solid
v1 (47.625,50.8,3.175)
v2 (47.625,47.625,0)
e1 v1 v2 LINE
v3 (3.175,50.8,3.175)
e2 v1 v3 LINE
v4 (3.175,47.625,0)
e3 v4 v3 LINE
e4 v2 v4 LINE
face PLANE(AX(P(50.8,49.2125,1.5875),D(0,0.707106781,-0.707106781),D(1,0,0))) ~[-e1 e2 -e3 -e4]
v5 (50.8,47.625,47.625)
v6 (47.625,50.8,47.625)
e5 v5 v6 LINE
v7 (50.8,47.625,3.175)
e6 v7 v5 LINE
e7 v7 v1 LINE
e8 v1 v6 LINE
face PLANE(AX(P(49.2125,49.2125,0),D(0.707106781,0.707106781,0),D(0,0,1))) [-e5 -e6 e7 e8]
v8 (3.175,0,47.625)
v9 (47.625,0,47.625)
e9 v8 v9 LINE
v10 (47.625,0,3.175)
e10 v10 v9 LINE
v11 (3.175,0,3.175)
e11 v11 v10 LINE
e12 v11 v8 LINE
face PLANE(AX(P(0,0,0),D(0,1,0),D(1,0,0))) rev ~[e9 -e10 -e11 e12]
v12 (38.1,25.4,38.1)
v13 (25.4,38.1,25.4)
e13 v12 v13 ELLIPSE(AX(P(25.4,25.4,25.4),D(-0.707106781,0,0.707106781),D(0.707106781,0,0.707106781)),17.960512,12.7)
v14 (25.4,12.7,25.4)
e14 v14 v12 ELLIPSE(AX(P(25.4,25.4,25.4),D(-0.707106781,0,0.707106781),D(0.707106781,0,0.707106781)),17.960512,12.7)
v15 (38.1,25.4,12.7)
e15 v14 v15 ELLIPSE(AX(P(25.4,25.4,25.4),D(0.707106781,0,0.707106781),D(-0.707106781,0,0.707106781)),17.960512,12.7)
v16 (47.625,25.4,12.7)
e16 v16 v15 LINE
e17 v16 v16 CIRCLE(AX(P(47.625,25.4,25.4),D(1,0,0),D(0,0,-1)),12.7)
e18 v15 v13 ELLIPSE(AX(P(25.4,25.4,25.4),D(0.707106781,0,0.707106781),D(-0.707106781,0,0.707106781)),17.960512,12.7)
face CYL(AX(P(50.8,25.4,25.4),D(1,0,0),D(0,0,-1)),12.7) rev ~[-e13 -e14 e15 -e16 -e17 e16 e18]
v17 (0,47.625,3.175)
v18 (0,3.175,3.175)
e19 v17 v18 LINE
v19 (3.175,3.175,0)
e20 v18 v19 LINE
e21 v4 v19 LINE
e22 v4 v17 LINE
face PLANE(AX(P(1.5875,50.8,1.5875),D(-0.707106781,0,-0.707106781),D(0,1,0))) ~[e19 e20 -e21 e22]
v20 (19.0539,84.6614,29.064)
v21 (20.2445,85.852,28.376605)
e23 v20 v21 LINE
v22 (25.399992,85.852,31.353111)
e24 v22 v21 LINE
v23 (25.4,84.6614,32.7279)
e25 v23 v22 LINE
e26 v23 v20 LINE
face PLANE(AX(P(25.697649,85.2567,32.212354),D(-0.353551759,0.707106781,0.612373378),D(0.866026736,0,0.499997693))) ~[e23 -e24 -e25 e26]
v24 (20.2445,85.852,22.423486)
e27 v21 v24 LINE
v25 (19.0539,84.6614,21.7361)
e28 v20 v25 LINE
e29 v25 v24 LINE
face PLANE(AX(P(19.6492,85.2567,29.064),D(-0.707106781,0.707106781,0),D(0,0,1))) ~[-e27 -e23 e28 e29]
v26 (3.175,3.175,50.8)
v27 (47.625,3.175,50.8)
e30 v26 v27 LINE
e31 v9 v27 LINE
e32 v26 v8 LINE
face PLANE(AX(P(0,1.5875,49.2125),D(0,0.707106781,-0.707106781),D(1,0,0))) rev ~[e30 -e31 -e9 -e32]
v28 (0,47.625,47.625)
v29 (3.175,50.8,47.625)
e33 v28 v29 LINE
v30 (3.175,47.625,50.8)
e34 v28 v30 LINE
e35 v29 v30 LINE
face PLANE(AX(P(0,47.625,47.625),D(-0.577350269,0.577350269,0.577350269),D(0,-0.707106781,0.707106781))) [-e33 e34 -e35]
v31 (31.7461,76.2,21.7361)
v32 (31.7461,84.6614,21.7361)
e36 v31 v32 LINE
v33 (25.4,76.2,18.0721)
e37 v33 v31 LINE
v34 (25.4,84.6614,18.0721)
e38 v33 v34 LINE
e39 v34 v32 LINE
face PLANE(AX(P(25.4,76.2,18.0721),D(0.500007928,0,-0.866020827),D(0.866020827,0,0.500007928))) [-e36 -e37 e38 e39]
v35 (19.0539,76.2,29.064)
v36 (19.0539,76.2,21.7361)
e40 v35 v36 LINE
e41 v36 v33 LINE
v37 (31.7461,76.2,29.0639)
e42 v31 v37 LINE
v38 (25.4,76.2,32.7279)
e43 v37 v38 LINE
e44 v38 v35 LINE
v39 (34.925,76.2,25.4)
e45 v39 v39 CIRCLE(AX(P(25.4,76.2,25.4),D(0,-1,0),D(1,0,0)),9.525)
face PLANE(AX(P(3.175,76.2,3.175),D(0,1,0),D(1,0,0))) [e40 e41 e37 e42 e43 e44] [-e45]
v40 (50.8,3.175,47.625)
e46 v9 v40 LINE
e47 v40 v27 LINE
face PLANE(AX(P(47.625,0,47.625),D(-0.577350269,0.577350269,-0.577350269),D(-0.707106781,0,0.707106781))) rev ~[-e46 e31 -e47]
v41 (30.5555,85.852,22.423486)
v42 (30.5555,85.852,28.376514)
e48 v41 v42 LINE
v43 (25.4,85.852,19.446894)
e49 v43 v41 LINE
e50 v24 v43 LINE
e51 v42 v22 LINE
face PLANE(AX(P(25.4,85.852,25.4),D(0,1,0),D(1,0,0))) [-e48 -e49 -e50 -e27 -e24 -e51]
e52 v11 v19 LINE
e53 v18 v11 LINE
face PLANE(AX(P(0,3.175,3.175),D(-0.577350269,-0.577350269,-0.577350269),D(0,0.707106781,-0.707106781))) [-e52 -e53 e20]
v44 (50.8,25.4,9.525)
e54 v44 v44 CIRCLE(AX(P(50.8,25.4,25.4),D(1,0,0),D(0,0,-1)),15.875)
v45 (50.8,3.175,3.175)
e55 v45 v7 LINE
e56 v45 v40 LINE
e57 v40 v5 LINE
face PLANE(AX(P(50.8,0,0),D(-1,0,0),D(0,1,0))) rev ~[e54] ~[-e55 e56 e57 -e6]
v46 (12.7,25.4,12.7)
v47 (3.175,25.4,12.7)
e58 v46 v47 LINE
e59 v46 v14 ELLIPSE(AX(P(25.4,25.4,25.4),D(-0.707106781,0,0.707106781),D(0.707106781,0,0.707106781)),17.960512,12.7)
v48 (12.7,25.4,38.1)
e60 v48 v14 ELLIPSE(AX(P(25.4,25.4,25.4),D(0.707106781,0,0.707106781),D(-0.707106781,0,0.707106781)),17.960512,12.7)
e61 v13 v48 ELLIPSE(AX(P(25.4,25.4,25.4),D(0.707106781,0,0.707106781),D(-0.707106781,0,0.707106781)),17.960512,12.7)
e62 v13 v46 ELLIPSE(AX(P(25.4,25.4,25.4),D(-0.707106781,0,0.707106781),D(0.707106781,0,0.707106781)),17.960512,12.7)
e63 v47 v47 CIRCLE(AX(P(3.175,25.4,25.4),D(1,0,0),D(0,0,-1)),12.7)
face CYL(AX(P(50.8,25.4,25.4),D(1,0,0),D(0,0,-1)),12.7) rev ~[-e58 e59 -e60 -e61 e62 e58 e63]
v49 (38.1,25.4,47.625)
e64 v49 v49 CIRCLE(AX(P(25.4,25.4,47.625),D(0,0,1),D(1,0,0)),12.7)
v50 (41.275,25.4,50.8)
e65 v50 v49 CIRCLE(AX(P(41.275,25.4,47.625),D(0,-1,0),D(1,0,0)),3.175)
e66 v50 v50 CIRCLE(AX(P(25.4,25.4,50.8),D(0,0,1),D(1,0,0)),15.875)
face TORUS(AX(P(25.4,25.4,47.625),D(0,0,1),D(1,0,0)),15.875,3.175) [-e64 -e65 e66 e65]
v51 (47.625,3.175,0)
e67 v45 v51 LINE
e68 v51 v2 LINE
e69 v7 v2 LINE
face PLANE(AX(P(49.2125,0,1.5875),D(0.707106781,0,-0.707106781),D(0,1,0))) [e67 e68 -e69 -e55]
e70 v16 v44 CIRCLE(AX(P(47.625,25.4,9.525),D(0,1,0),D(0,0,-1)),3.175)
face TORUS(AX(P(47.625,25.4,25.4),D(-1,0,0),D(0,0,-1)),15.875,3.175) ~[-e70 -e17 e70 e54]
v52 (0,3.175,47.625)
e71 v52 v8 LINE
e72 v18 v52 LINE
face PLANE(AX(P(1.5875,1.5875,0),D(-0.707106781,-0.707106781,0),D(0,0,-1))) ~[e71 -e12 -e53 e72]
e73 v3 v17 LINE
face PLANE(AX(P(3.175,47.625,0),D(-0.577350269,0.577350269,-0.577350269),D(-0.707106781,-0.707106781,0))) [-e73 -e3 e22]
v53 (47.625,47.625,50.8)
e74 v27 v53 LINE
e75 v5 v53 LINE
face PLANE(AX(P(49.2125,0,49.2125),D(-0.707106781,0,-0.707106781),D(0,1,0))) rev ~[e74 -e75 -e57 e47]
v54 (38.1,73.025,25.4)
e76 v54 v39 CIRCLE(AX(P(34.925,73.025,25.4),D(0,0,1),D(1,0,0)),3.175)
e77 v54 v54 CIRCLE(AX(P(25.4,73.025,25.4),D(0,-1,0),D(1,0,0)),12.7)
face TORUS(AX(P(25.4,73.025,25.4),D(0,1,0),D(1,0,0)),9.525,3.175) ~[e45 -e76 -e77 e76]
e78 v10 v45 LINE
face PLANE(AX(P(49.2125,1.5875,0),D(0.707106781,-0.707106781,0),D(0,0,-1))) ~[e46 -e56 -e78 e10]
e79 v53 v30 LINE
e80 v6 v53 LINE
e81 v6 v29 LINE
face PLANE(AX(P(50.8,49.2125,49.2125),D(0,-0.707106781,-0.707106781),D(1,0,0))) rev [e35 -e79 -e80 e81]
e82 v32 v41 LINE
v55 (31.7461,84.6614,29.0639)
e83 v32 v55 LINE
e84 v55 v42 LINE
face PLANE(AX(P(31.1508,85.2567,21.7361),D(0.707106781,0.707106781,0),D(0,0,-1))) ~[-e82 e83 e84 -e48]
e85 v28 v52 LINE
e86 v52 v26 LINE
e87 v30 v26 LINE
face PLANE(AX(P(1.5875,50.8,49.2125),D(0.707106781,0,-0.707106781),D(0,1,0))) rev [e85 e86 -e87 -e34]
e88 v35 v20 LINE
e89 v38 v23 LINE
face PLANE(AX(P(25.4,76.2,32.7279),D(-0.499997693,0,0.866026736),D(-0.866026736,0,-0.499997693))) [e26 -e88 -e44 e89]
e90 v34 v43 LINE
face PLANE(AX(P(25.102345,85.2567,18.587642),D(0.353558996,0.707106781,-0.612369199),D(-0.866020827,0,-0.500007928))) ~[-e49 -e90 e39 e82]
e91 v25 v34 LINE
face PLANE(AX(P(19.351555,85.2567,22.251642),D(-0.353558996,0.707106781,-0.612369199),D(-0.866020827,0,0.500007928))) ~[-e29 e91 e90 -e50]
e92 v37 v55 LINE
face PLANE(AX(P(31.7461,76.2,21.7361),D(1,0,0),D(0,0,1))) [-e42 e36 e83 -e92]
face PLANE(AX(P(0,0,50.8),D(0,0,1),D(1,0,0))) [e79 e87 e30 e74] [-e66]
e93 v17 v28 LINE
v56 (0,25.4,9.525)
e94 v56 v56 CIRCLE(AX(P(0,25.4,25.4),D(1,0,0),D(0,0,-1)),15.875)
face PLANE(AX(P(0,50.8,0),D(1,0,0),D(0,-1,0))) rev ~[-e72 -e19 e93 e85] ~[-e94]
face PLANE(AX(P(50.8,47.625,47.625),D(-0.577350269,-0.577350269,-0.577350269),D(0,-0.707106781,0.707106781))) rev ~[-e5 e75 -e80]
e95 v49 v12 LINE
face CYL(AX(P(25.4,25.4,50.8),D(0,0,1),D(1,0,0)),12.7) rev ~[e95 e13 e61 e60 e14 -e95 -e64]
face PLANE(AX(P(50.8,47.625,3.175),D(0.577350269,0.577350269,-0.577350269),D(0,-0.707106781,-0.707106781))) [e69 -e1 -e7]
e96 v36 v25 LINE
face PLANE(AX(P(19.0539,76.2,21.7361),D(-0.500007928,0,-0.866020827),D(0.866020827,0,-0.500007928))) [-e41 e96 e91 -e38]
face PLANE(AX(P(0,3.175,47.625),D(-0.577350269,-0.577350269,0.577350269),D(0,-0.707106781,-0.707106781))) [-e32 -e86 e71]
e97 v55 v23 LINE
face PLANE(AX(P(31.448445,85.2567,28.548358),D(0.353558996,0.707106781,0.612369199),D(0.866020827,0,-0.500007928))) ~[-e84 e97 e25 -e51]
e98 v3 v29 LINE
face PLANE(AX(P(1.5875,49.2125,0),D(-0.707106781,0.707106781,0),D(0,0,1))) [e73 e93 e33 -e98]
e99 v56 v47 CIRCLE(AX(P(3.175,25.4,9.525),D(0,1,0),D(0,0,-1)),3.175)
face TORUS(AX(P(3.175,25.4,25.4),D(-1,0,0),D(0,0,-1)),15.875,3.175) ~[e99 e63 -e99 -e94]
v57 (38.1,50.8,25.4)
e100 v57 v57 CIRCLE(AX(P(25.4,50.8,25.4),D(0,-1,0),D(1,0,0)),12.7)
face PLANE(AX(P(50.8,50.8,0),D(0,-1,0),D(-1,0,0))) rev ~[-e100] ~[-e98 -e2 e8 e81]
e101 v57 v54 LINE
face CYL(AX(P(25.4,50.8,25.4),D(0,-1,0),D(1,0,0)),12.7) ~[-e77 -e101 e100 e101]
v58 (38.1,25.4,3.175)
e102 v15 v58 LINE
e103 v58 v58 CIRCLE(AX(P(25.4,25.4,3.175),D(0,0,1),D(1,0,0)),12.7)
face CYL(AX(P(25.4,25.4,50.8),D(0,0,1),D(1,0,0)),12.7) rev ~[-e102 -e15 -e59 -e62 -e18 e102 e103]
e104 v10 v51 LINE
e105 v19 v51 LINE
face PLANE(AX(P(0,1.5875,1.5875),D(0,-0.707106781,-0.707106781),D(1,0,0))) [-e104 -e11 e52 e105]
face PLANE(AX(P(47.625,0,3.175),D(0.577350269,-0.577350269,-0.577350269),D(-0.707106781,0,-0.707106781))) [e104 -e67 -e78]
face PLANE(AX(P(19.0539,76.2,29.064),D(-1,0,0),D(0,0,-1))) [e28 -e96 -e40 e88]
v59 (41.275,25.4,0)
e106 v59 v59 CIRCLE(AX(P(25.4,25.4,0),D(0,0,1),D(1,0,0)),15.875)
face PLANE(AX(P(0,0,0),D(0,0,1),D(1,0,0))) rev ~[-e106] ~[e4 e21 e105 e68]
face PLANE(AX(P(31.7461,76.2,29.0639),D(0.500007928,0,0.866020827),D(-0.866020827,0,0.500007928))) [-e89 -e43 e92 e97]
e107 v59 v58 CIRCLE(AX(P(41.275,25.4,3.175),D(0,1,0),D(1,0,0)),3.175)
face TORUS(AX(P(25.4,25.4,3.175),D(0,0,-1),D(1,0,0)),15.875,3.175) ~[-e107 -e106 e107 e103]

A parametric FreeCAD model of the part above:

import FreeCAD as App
import Part
import Sketcher

V = App.Vector
Q = App.Units.Quantity


def edges_at(feature, points):
    """Names of the edges that pass closest to the given points."""
    edges = feature.Shape.Edges
    near = lambda p: min(range(len(edges)), key=lambda i: edges[i].distToShape(Part.Vertex(*p))[0])
    return sorted({f"Edge{near(p) + 1}" for p in points})

doc = App.newDocument("Part")
body = doc.addObject("PartDesign::Body", "Body")

sketch1 = body.newObject("Sketcher::SketchObject", "Sketch")
sketch1.AttachmentSupport = (doc.getObject("XY_Plane"), [""])
sketch1.MapMode = "FlatFace"
sketch1.addGeometry([
    Part.LineSegment(V(0, 51, 0), V(0, 0, 0)),
    Part.LineSegment(V(0, 0, 0), V(51, 0, 0)),
    Part.LineSegment(V(51, 0, 0), V(51, 51, 0)),
    Part.LineSegment(V(51, 51, 0), V(0, 51, 0)),
], False)
sketch1.addConstraint([
    Sketcher.Constraint("Coincident", 0, 2, 1, 1),
    Sketcher.Constraint("Coincident", 1, 2, 2, 1),
    Sketcher.Constraint("Coincident", 2, 2, 3, 1),
    Sketcher.Constraint("Coincident", 3, 2, 0, 1),
    Sketcher.Constraint("Vertical", 0),
    Sketcher.Constraint("Horizontal", 1),
    Sketcher.Constraint("Vertical", 2),
    Sketcher.Constraint("Horizontal", 3),
    Sketcher.Constraint("Coincident", 0, 2, -1, 1),
    Sketcher.Constraint("Equal", 3, 0),
    Sketcher.Constraint("DistanceX", 1, 1, 1, 2, Q("2 in")),
])
pad1 = body.newObject("PartDesign::Pad", "Pad")
pad1.Profile = sketch1
pad1.Length = Q("2 in")

sketch2 = body.newObject("Sketcher::SketchObject", "Sketch001")
sketch2.AttachmentSupport = (doc.getObject("XY_Plane"), [""])
sketch2.MapMode = "FlatFace"
sketch2.AttachmentOffset = App.Placement(V(0, 0, 2 * 25.4), App.Rotation())
sketch2.addGeometry(Part.Circle(V(25, 25, 0), V(0, 0, 1), 13), False)
sketch2.addConstraint([
    Sketcher.Constraint("Diameter", 0, Q("1 in")),
    Sketcher.Constraint("DistanceX", -1, 1, 0, 3, Q("1 in")),
    Sketcher.Constraint("DistanceY", -1, 1, 0, 3, Q("1 in")),
])
pocket1 = body.newObject("PartDesign::Pocket", "Pocket")
pocket1.Profile = sketch2
pocket1.Length = Q("2 in")

sketch3 = body.newObject("Sketcher::SketchObject", "Sketch002")
sketch3.AttachmentSupport = (doc.getObject("YZ_Plane"), [""])
sketch3.MapMode = "FlatFace"
sketch3.AttachmentOffset = App.Placement(V(0, 0, 2 * 25.4), App.Rotation())
sketch3.addGeometry(Part.Circle(V(25, 25, 0), V(0, 0, 1), 13), False)
sketch3.addConstraint([
    Sketcher.Constraint("Diameter", 0, Q("1 in")),
    Sketcher.Constraint("DistanceX", -1, 1, 0, 3, Q("1 in")),
    Sketcher.Constraint("DistanceY", -1, 1, 0, 3, Q("1 in")),
])
pocket2 = body.newObject("PartDesign::Pocket", "Pocket001")
pocket2.Profile = sketch3
pocket2.Length = Q("2 in")
doc.recompute()

chamfer = body.newObject("PartDesign::Chamfer", "Chamfer")
chamfer.Base = (pocket2, edges_at(pocket2, [
    (25.4, 50.8, 50.8),
    (0, 50.8, 25.4),
    (25.4, 50.8, 0),
    (50.8, 50.8, 25.4),
    (50.8, 25.4, 50.8),
    (50.8, 25.4, 0),
    (50.8, 0, 25.4),
    (25.4, 0, 0),
    (25.4, 0, 50.8),
    (0, 25.4, 50.8),
    (0, 0, 25.4),
    (0, 25.4, 0),
]))
chamfer.Size = Q("0.125 in")
doc.recompute()

fillet = body.newObject("PartDesign::Fillet", "Fillet")
fillet.Base = (chamfer, edges_at(chamfer, [
    (12.7, 25.4, 50.8),
    (50.8, 25.4, 38.1),
    (12.7, 25.4, 0),
    (0, 25.4, 38.1),
]))
fillet.Radius = Q("0.125 in")

sketch4 = body.newObject("Sketcher::SketchObject", "Sketch003")
sketch4.AttachmentSupport = (doc.getObject("XZ_Plane"), [""])
sketch4.MapMode = "FlatFace"
sketch4.AttachmentOffset = App.Placement(V(0, 0, -2 * 25.4), App.Rotation())
sketch4.addGeometry(Part.Circle(V(25, 25, 0), V(0, 0, 1), 13), False)
sketch4.addConstraint([
    Sketcher.Constraint("Diameter", 0, Q("1 in")),
    Sketcher.Constraint("DistanceX", -1, 1, 0, 3, Q("1 in")),
    Sketcher.Constraint("DistanceY", -1, 1, 0, 3, Q("1 in")),
])
pad2 = body.newObject("PartDesign::Pad", "Pad001")
pad2.Profile = sketch4
pad2.Length = Q("1 in")
pad2.Reversed = True
doc.recompute()

fillet2 = body.newObject("PartDesign::Fillet", "Fillet001")
fillet2.Base = (pad2, edges_at(pad2, [(12.7, 76.2, 25.4)]))
fillet2.Radius = Q("0.125 in")

sketch5 = body.newObject("Sketcher::SketchObject", "Sketch004")
sketch5.AttachmentSupport = (doc.getObject("XZ_Plane"), [""])
sketch5.MapMode = "FlatFace"
sketch5.AttachmentOffset = App.Placement(V(0, 0, -3 * 25.4), App.Rotation())
sketch5.addGeometry([
    Part.LineSegment(V(25, 18, 0), V(19, 22, 0)),
    Part.LineSegment(V(19, 22, 0), V(19, 29, 0)),
    Part.LineSegment(V(19, 29, 0), V(25, 33, 0)),
    Part.LineSegment(V(25, 33, 0), V(32, 29, 0)),
    Part.LineSegment(V(32, 29, 0), V(32, 22, 0)),
    Part.LineSegment(V(32, 22, 0), V(25, 18, 0)),
], False)
sketch5.addConstraint([
    Sketcher.Constraint("Coincident", 0, 2, 1, 1),
    Sketcher.Constraint("Coincident", 1, 2, 2, 1),
    Sketcher.Constraint("Coincident", 2, 2, 3, 1),
    Sketcher.Constraint("Coincident", 3, 2, 4, 1),
    Sketcher.Constraint("Coincident", 4, 2, 5, 1),
    Sketcher.Constraint("Coincident", 5, 2, 0, 1),
    Sketcher.Constraint("Vertical", 1),
    Sketcher.Constraint("Vertical", 4),
    Sketcher.Constraint("Parallel", 0, 3),
    Sketcher.Constraint("Parallel", 2, 5),
    Sketcher.Constraint("Horizontal", 1, 2, 3, 2),
    Sketcher.Constraint("Horizontal", 0, 2, 4, 2),
    Sketcher.Constraint("Vertical", 2, 2, 5, 2),
    Sketcher.Constraint("DistanceX", -1, 1, 2, 2, Q("1 in")),
    Sketcher.Constraint("Angle", 0, Q("149.9995 deg")),
    Sketcher.Constraint("DistanceY", 5, 2, 2, 2, Q("0.577 in")),
    Sketcher.Constraint("DistanceY", 1, 1, 1, 2, Q("0.2885 in")),
    Sketcher.Constraint("DistanceY", -1, 1, 2, 2, Q("1.2885 in")),
])
pad3 = body.newObject("PartDesign::Pad", "Pad002")
pad3.Profile = sketch5
pad3.Length = Q("0.38 in")
pad3.Reversed = True
doc.recompute()

chamfer2 = body.newObject("PartDesign::Chamfer", "Chamfer001")
chamfer2.Base = (pad3, edges_at(pad3, [
    (22.227, 85.852, 30.896),
    (28.573, 85.852, 30.896),
    (31.746, 85.852, 25.4),
    (28.573, 85.852, 19.904),
    (22.227, 85.852, 19.904),
    (19.054, 85.852, 25.4),
]))
chamfer2.Size = Q("0.046874 in")

doc.recompute()
